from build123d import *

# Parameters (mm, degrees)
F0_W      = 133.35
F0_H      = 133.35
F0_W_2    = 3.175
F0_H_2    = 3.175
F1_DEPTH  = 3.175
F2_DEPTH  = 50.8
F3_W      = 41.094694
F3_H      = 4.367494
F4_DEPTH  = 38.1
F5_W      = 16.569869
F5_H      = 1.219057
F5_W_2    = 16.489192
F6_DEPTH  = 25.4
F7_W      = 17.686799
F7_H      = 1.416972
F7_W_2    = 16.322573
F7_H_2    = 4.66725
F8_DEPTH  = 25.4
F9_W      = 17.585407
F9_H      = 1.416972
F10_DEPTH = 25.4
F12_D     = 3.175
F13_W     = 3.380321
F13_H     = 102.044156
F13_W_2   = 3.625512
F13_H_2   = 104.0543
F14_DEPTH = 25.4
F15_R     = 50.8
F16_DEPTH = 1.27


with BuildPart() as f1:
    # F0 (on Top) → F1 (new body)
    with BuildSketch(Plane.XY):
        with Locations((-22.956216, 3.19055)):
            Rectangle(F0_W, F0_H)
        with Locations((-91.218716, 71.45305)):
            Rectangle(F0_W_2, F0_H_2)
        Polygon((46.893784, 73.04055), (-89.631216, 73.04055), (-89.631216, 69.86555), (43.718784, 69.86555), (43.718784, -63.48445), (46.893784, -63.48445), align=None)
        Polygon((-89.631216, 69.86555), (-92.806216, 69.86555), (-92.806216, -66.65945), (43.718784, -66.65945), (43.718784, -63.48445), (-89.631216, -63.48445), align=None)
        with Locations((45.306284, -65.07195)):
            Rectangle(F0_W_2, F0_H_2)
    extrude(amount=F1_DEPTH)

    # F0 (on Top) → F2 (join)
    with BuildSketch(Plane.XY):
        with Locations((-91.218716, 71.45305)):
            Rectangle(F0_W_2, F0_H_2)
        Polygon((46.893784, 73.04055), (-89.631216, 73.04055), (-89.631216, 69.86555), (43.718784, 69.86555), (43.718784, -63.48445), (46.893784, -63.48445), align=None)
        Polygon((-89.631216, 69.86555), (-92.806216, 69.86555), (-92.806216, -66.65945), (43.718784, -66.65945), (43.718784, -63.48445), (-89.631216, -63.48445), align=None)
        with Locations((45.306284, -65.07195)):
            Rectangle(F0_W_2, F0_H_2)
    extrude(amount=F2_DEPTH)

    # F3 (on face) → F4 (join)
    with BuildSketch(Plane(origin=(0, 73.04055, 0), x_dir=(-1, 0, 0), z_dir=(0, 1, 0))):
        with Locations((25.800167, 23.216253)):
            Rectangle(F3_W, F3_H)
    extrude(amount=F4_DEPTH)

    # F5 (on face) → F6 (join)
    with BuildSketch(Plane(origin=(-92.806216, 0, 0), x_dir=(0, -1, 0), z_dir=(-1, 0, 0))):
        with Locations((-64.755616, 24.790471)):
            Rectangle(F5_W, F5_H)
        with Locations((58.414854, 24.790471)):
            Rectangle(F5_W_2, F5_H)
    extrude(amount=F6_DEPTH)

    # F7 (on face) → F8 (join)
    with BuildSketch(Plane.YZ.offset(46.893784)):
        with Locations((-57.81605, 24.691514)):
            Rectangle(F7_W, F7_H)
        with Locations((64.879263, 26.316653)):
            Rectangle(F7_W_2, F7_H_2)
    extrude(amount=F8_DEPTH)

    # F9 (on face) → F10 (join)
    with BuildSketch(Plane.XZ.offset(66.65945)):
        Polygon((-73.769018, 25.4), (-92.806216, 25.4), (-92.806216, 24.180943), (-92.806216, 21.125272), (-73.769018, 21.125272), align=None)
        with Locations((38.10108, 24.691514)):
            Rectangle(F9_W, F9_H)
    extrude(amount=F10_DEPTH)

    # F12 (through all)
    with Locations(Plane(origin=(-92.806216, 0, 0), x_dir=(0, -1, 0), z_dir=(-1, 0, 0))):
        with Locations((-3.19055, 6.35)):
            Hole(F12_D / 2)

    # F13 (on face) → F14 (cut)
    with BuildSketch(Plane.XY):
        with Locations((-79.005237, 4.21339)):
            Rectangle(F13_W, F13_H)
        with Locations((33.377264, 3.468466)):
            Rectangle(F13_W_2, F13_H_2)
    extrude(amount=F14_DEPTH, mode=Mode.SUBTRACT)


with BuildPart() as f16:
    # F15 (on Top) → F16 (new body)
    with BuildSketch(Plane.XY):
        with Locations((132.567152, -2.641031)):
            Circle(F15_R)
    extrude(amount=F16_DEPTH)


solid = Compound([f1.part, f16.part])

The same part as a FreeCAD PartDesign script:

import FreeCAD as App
import Part
import Sketcher
from FreeCAD import Vector
Q = App.Units.Quantity

doc = App.newDocument("Part")
body = doc.addObject("PartDesign::Body", "Body")

# Sketch on XY plane
sketch1 = body.newObject("Sketcher::SketchObject", "Sketch")
sketch1.AttachmentSupport = (doc.getObject("XY_Plane"), [""])
sketch1.MapMode = "FlatFace"
sketch1.addGeometry([
    Part.LineSegment(Vector(47, 73, 0), Vector(-93, 73, 0)),
    Part.LineSegment(Vector(-93, 73, 0), Vector(-93, -67, 0)),
    Part.LineSegment(Vector(-93, -67, 0), Vector(47, -67, 0)),
    Part.LineSegment(Vector(47, -67, 0), Vector(47, 73, 0)),
], False)
sketch1.addConstraint([
    Sketcher.Constraint("Coincident", 0, 2, 1, 1),
    Sketcher.Constraint("Coincident", 1, 2, 2, 1),
    Sketcher.Constraint("Coincident", 2, 2, 3, 1),
    Sketcher.Constraint("Coincident", 3, 2, 0, 1),
    Sketcher.Constraint("Horizontal", 0),
    Sketcher.Constraint("Vertical", 1),
    Sketcher.Constraint("Horizontal", 2),
    Sketcher.Constraint("Vertical", 3),
    Sketcher.Constraint("Equal", 2, 1),
    Sketcher.Constraint("DistanceX", 0, 2, 0, 1, Q("5.5 in")),
    Sketcher.Constraint("DistanceY", -1, 1, 0, 2, 73.04055),
    Sketcher.Constraint("DistanceX", 0, 2, -1, 1, 92.806216),
])
pad1 = body.newObject("PartDesign::Pad", "Pad")
pad1.Profile = sketch1
pad1.Length = Q("0.125 in")

# Sketch on XY plane
sketch2 = body.newObject("Sketcher::SketchObject", "Sketch001")
sketch2.AttachmentSupport = (doc.getObject("XY_Plane"), [""])
sketch2.MapMode = "FlatFace"
sketch2.addGeometry([
    Part.LineSegment(Vector(-93, -67, 0), Vector(47, -67, 0)),  # 0
    Part.LineSegment(Vector(47, -67, 0), Vector(47, 73, 0)),  # 1
    Part.LineSegment(Vector(47, 73, 0), Vector(-93, 73, 0)),  # 2
    Part.LineSegment(Vector(-93, 73, 0), Vector(-93, -67, 0)),  # 3
    Part.LineSegment(Vector(44, 70, 0), Vector(44, -63, 0)),  # 4
    Part.LineSegment(Vector(44, -63, 0), Vector(-90, -63, 0)),  # 5
    Part.LineSegment(Vector(-90, -63, 0), Vector(-90, 70, 0)),  # 6
    Part.LineSegment(Vector(-90, 70, 0), Vector(44, 70, 0)),  # 7
], False)
sketch2.addConstraint([
    Sketcher.Constraint("Coincident", 0, 2, 1, 1),
    Sketcher.Constraint("Coincident", 1, 2, 2, 1),
    Sketcher.Constraint("Coincident", 2, 2, 3, 1),
    Sketcher.Constraint("Coincident", 3, 2, 0, 1),
    Sketcher.Constraint("Coincident", 4, 2, 5, 1),
    Sketcher.Constraint("Coincident", 5, 2, 6, 1),
    Sketcher.Constraint("Coincident", 6, 2, 7, 1),
    Sketcher.Constraint("Coincident", 7, 2, 4, 1),
    Sketcher.Constraint("Horizontal", 0),
    Sketcher.Constraint("Vertical", 1),
    Sketcher.Constraint("Horizontal", 2),
    Sketcher.Constraint("Vertical", 3),
    Sketcher.Constraint("Vertical", 4),
    Sketcher.Constraint("Horizontal", 5),
    Sketcher.Constraint("Vertical", 6),
    Sketcher.Constraint("Horizontal", 7),
    Sketcher.Constraint("Equal", 2, 1),
    Sketcher.Constraint("Equal", 7, 4),
    Sketcher.Constraint("DistanceX", 0, 1, 0, 2, Q("5.5 in")),
    Sketcher.Constraint("DistanceX", 5, 2, 5, 1, Q("5.25 in")),
    Sketcher.Constraint("DistanceX", 4, 2, 0, 2, Q("0.125 in")),
    Sketcher.Constraint("DistanceY", 0, 2, 4, 2, Q("0.125 in")),
    Sketcher.Constraint("DistanceY", 0, 2, -1, 1, 66.65945),
    Sketcher.Constraint("DistanceX", -1, 1, 0, 2, 46.893784),
])
pad2 = body.newObject("PartDesign::Pad", "Pad001")
pad2.Profile = sketch2
pad2.Length = Q("2 in")

# Sketch on XZ plane
sketch3 = body.newObject("Sketcher::SketchObject", "Sketch002")
sketch3.AttachmentSupport = (doc.getObject("XZ_Plane"), [""])
sketch3.MapMode = "FlatFace"
sketch3.AttachmentOffset = App.Placement(Vector(0, 0, -73.04055), App.Rotation())
sketch3.addGeometry([
    Part.LineSegment(Vector(-5.3, 25.4, 0), Vector(-5.3, 21, 0)),
    Part.LineSegment(Vector(-5.3, 21, 0), Vector(-46.3, 21, 0)),
    Part.LineSegment(Vector(-46.3, 21, 0), Vector(-46.3, 25.4, 0)),
    Part.LineSegment(Vector(-46.3, 25.4, 0), Vector(-5.3, 25.4, 0)),
], False)
sketch3.addConstraint([
    Sketcher.Constraint("Coincident", 0, 2, 1, 1),
    Sketcher.Constraint("Coincident", 1, 2, 2, 1),
    Sketcher.Constraint("Coincident", 2, 2, 3, 1),
    Sketcher.Constraint("Coincident", 3, 2, 0, 1),
    Sketcher.Constraint("Vertical", 0),
    Sketcher.Constraint("Horizontal", 1),
    Sketcher.Constraint("Vertical", 2),
    Sketcher.Constraint("Horizontal", 3),
    Sketcher.Constraint("DistanceY", -1, 1, 2, 2, Q("1 in")),
    Sketcher.Constraint("DistanceX", 1, 2, 1, 1, 41.094694),
    Sketcher.Constraint("DistanceY", 0, 2, 0, 1, 4.367494),
    Sketcher.Constraint("DistanceX", 0, 2, -1, 1, 5.25282),
])
pad3 = body.newObject("PartDesign::Pad", "Pad002")
pad3.Profile = sketch3
pad3.Length = Q("1.5 in")
pad3.Reversed = True

# Sketch on YZ plane
sketch4 = body.newObject("Sketcher::SketchObject", "Sketch003")
sketch4.AttachmentSupport = (doc.getObject("YZ_Plane"), [""])
sketch4.MapMode = "FlatFace"
sketch4.AttachmentOffset = App.Placement(Vector(0, 0, -92.806216), App.Rotation())
sketch4.addGeometry([
    Part.LineSegment(Vector(73, 25.4, 0), Vector(73, 24.2, 0)),  # 0
    Part.LineSegment(Vector(73, 24.2, 0), Vector(56.5, 24.2, 0)),  # 1
    Part.LineSegment(Vector(56.5, 24.2, 0), Vector(56.5, 25.4, 0)),  # 2
    Part.LineSegment(Vector(56.5, 25.4, 0), Vector(73, 25.4, 0)),  # 3
    Part.LineSegment(Vector(-50.2, 25.4, 0), Vector(-50.2, 24.2, 0)),  # 4
    Part.LineSegment(Vector(-50.2, 24.2, 0), Vector(-66.7, 24.2, 0)),  # 5
    Part.LineSegment(Vector(-66.7, 24.2, 0), Vector(-66.7, 25.4, 0)),  # 6
    Part.LineSegment(Vector(-66.7, 25.4, 0), Vector(-50.2, 25.4, 0)),  # 7
], False)
sketch4.addConstraint([
    Sketcher.Constraint("Coincident", 0, 2, 1, 1),
    Sketcher.Constraint("Coincident", 1, 2, 2, 1),
    Sketcher.Constraint("Coincident", 2, 2, 3, 1),
    Sketcher.Constraint("Coincident", 3, 2, 0, 1),
    Sketcher.Constraint("Coincident", 4, 2, 5, 1),
    Sketcher.Constraint("Coincident", 5, 2, 6, 1),
    Sketcher.Constraint("Coincident", 6, 2, 7, 1),
    Sketcher.Constraint("Coincident", 7, 2, 4, 1),
    Sketcher.Constraint("Vertical", 0),
    Sketcher.Constraint("Horizontal", 1),
    Sketcher.Constraint("Vertical", 2),
    Sketcher.Constraint("Horizontal", 3),
    Sketcher.Constraint("Vertical", 4),
    Sketcher.Constraint("Horizontal", 5),
    Sketcher.Constraint("Vertical", 6),
    Sketcher.Constraint("Horizontal", 7),
    Sketcher.Constraint("Horizontal", 1, 2, 4, 2),
    Sketcher.Constraint("Horizontal", 3, 2, 6, 2),
    Sketcher.Constraint("DistanceY", -1, 1, 2, 2, Q("1 in")),
    Sketcher.Constraint("DistanceX", 5, 2, 0, 2, Q("5.5 in")),
    Sketcher.Constraint("DistanceX", 1, 2, 1, 1, 16.569869),
    Sketcher.Constraint("DistanceX", 5, 2, 5, 1, 16.489192),
    Sketcher.Constraint("DistanceY", 0, 2, 0, 1, 1.219057),
    Sketcher.Constraint("DistanceX", -1, 1, 0, 2, 73.04055),
])
pad4 = body.newObject("PartDesign::Pad", "Pad003")
pad4.Profile = sketch4
pad4.Length = Q("1 in")
pad4.Reversed = True

# Sketch on YZ plane
sketch5 = body.newObject("Sketcher::SketchObject", "Sketch004")
sketch5.AttachmentSupport = (doc.getObject("YZ_Plane"), [""])
sketch5.MapMode = "FlatFace"
sketch5.AttachmentOffset = App.Placement(Vector(0, 0, 46.893784), App.Rotation())
sketch5.addGeometry([
    Part.LineSegment(Vector(-66.7, 25.4, 0), Vector(-66.7, 24, 0)),  # 0
    Part.LineSegment(Vector(-66.7, 24, 0), Vector(-49, 24, 0)),  # 1
    Part.LineSegment(Vector(-49, 24, 0), Vector(-49, 25.4, 0)),  # 2
    Part.LineSegment(Vector(-49, 25.4, 0), Vector(-66.7, 25.4, 0)),  # 3
    Part.LineSegment(Vector(56.7, 28.7, 0), Vector(56.7, 24, 0)),  # 4
    Part.LineSegment(Vector(56.7, 24, 0), Vector(73, 24, 0)),  # 5
    Part.LineSegment(Vector(73, 24, 0), Vector(73, 28.7, 0)),  # 6
    Part.LineSegment(Vector(73, 28.7, 0), Vector(56.7, 28.7, 0)),  # 7
], False)
sketch5.addConstraint([
    Sketcher.Constraint("Coincident", 0, 2, 1, 1),
    Sketcher.Constraint("Coincident", 1, 2, 2, 1),
    Sketcher.Constraint("Coincident", 2, 2, 3, 1),
    Sketcher.Constraint("Coincident", 3, 2, 0, 1),
    Sketcher.Constraint("Coincident", 4, 2, 5, 1),
    Sketcher.Constraint("Coincident", 5, 2, 6, 1),
    Sketcher.Constraint("Coincident", 6, 2, 7, 1),
    Sketcher.Constraint("Coincident", 7, 2, 4, 1),
    Sketcher.Constraint("Vertical", 0),
    Sketcher.Constraint("Horizontal", 1),
    Sketcher.Constraint("Vertical", 2),
    Sketcher.Constraint("Horizontal", 3),
    Sketcher.Constraint("Vertical", 4),
    Sketcher.Constraint("Horizontal", 5),
    Sketcher.Constraint("Vertical", 6),
    Sketcher.Constraint("Horizontal", 7),
    Sketcher.Constraint("Horizontal", 1, 2, 4, 2),
    Sketcher.Constraint("DistanceY", -1, 1, 2, 2, Q("1 in")),
    Sketcher.Constraint("DistanceX", 0, 2, 5, 2, Q("5.5 in")),
    Sketcher.Constraint("DistanceX", 1, 1, 1, 2, 17.686799),
    Sketcher.Constraint("DistanceY", 0, 2, 0, 1, 1.416972),
    Sketcher.Constraint("DistanceY", 4, 2, 4, 1, 4.66725),
    Sketcher.Constraint("DistanceX", 5, 1, 5, 2, 16.322573),
    Sketcher.Constraint("DistanceX", 0, 2, -1, 1, 66.659449),
])
pad5 = body.newObject("PartDesign::Pad", "Pad004")
pad5.Profile = sketch5
pad5.Length = Q("1 in")

# Sketch on XZ plane
sketch6 = body.newObject("Sketcher::SketchObject", "Sketch005")
sketch6.AttachmentSupport = (doc.getObject("XZ_Plane"), [""])
sketch6.MapMode = "FlatFace"
sketch6.AttachmentOffset = App.Placement(Vector(0, 0, 66.65945), App.Rotation())
sketch6.addGeometry([
    Part.LineSegment(Vector(-73.8, 25.4, 0), Vector(-92.8, 25.4, 0)),  # 0
    Part.LineSegment(Vector(-92.8, 25.4, 0), Vector(-92.8, 21.1, 0)),  # 1
    Part.LineSegment(Vector(-92.8, 21.1, 0), Vector(-73.8, 21.1, 0)),  # 2
    Part.LineSegment(Vector(-73.8, 21.1, 0), Vector(-73.8, 25.4, 0)),  # 3
    Part.LineSegment(Vector(29.3, 25.4, 0), Vector(29.3, 24, 0)),  # 4
    Part.LineSegment(Vector(29.3, 24, 0), Vector(46.9, 24, 0)),  # 5
    Part.LineSegment(Vector(46.9, 24, 0), Vector(46.9, 25.4, 0)),  # 6
    Part.LineSegment(Vector(46.9, 25.4, 0), Vector(29.3, 25.4, 0)),  # 7
], False)
sketch6.addConstraint([
    Sketcher.Constraint("Coincident", 0, 2, 1, 1),
    Sketcher.Constraint("Coincident", 1, 2, 2, 1),
    Sketcher.Constraint("Coincident", 2, 2, 3, 1),
    Sketcher.Constraint("Coincident", 3, 2, 0, 1),
    Sketcher.Constraint("Coincident", 4, 2, 5, 1),
    Sketcher.Constraint("Coincident", 5, 2, 6, 1),
    Sketcher.Constraint("Coincident", 6, 2, 7, 1),
    Sketcher.Constraint("Coincident", 7, 2, 4, 1),
    Sketcher.Constraint("Horizontal", 0),
    Sketcher.Constraint("Vertical", 1),
    Sketcher.Constraint("Horizontal", 2),
    Sketcher.Constraint("Vertical", 3),
    Sketcher.Constraint("Vertical", 4),
    Sketcher.Constraint("Horizontal", 5),
    Sketcher.Constraint("Vertical", 6),
    Sketcher.Constraint("Horizontal", 7),
    Sketcher.Constraint("Horizontal", 3, 2, 6, 2),
    Sketcher.Constraint("DistanceY", -1, 1, 0, 2, Q("1 in")),
    Sketcher.Constraint("DistanceX", 0, 2, 5, 2, Q("5.5 in")),
    Sketcher.Constraint("DistanceX", 0, 2, 0, 1, 19.037198),
    Sketcher.Constraint("DistanceY", 4, 2, 4, 1, 1.416972),
    Sketcher.Constraint("DistanceX", 5, 1, 5, 2, 17.585407),
    Sketcher.Constraint("DistanceY", 1, 2, 1, 1, 4.274728),
    Sketcher.Constraint("DistanceX", 2, 2, -1, 1, 73.769018),
])
pad6 = body.newObject("PartDesign::Pad", "Pad005")
pad6.Profile = sketch6
pad6.Length = Q("1 in")

# Sketch on YZ plane
sketch7 = body.newObject("Sketcher::SketchObject", "Sketch006")
sketch7.AttachmentSupport = (doc.getObject("YZ_Plane"), [""])
sketch7.MapMode = "FlatFace"
sketch7.AttachmentOffset = App.Placement(Vector(0, 0, -92.806216), App.Rotation())
sketch7.addGeometry(Part.Circle(Vector(3.2, 6.3, 0), Vector(0, 0, 1), 1.6), False)
sketch7.addConstraint([
    Sketcher.Constraint("Diameter", 0, Q("0.125 in")),
    Sketcher.Constraint("DistanceY", -1, 1, 0, 3, Q("0.25 in")),
    Sketcher.Constraint("DistanceX", -1, 1, 0, 3, 3.19055),
])
doc.recompute()
hole = body.newObject("PartDesign::Hole", "Hole")
hole.Profile = sketch7
hole.ThreadType = "None"
hole.Diameter = Q("0.125 in")
hole.DepthType = "ThroughAll"
hole.Reversed = True

# Sketch on XY plane
sketch8 = body.newObject("Sketcher::SketchObject", "Sketch007")
sketch8.AttachmentSupport = (doc.getObject("XY_Plane"), [""])
sketch8.MapMode = "FlatFace"
sketch8.addGeometry([
    Part.LineSegment(Vector(-80.7, 55.2, 0), Vector(-80.7, -46.8, 0)),  # 0
    Part.LineSegment(Vector(-80.7, -46.8, 0), Vector(-77.3, -46.8, 0)),  # 1
    Part.LineSegment(Vector(-77.3, -46.8, 0), Vector(-77.3, 55.2, 0)),  # 2
    Part.LineSegment(Vector(-77.3, 55.2, 0), Vector(-80.7, 55.2, 0)),  # 3
    Part.LineSegment(Vector(31.6, 55.5, 0), Vector(31.6, -48.6, 0)),  # 4
    Part.LineSegment(Vector(31.6, -48.6, 0), Vector(35.2, -48.6, 0)),  # 5
    Part.LineSegment(Vector(35.2, -48.6, 0), Vector(35.2, 55.5, 0)),  # 6
    Part.LineSegment(Vector(35.2, 55.5, 0), Vector(31.6, 55.5, 0)),  # 7
], False)
sketch8.addConstraint([
    Sketcher.Constraint("Coincident", 0, 2, 1, 1),
    Sketcher.Constraint("Coincident", 1, 2, 2, 1),
    Sketcher.Constraint("Coincident", 2, 2, 3, 1),
    Sketcher.Constraint("Coincident", 3, 2, 0, 1),
    Sketcher.Constraint("Coincident", 4, 2, 5, 1),
    Sketcher.Constraint("Coincident", 5, 2, 6, 1),
    Sketcher.Constraint("Coincident", 6, 2, 7, 1),
    Sketcher.Constraint("Coincident", 7, 2, 4, 1),
    Sketcher.Constraint("Vertical", 0),
    Sketcher.Constraint("Horizontal", 1),
    Sketcher.Constraint("Vertical", 2),
    Sketcher.Constraint("Horizontal", 3),
    Sketcher.Constraint("Vertical", 4),
    Sketcher.Constraint("Horizontal", 5),
    Sketcher.Constraint("Vertical", 6),
    Sketcher.Constraint("Horizontal", 7),
    Sketcher.Constraint("DistanceY", 4, 2, 4, 1, 104.0543),
    Sketcher.Constraint("DistanceX", 1, 1, 1, 2, 3.380321),
    Sketcher.Constraint("DistanceX", 5, 1, 5, 2, 3.625512),
    Sketcher.Constraint("DistanceY", 0, 2, 0, 1, 102.044156),
    Sketcher.Constraint("DistanceX", -1, 1, 4, 2, 31.564508),
    Sketcher.Constraint("DistanceY", 4, 2, 2, 2, 103.794152),
    Sketcher.Constraint("DistanceX", 0, 2, -1, 1, 80.695397),
    Sketcher.Constraint("DistanceY", 0, 2, -1, 1, 46.808688),
])
pocket1 = body.newObject("PartDesign::Pocket", "Pocket")
pocket1.Profile = sketch8
pocket1.Length = Q("1 in")
pocket1.Reversed = True
body2 = doc.addObject("PartDesign::Body", "Body001")

# Sketch on XY plane
sketch9 = body2.newObject("Sketcher::SketchObject", "Sketch008")
sketch9.AttachmentSupport = (doc.getObject("XY_Plane001"), [""])
sketch9.MapMode = "FlatFace"
sketch9.addGeometry(Part.Circle(Vector(133, -3, 0), Vector(0, 0, 1), 51), False)
sketch9.addConstraint([
    Sketcher.Constraint("Diameter", 0, Q("4 in")),
    Sketcher.Constraint("DistanceX", -1, 1, 0, 3, 132.567152),
    Sketcher.Constraint("DistanceY", 0, 3, -1, 1, 2.641031),
])
pad7 = body2.newObject("PartDesign::Pad", "Pad006")
pad7.Profile = sketch9
pad7.Length = Q("0.05 in")

doc.recompute()
